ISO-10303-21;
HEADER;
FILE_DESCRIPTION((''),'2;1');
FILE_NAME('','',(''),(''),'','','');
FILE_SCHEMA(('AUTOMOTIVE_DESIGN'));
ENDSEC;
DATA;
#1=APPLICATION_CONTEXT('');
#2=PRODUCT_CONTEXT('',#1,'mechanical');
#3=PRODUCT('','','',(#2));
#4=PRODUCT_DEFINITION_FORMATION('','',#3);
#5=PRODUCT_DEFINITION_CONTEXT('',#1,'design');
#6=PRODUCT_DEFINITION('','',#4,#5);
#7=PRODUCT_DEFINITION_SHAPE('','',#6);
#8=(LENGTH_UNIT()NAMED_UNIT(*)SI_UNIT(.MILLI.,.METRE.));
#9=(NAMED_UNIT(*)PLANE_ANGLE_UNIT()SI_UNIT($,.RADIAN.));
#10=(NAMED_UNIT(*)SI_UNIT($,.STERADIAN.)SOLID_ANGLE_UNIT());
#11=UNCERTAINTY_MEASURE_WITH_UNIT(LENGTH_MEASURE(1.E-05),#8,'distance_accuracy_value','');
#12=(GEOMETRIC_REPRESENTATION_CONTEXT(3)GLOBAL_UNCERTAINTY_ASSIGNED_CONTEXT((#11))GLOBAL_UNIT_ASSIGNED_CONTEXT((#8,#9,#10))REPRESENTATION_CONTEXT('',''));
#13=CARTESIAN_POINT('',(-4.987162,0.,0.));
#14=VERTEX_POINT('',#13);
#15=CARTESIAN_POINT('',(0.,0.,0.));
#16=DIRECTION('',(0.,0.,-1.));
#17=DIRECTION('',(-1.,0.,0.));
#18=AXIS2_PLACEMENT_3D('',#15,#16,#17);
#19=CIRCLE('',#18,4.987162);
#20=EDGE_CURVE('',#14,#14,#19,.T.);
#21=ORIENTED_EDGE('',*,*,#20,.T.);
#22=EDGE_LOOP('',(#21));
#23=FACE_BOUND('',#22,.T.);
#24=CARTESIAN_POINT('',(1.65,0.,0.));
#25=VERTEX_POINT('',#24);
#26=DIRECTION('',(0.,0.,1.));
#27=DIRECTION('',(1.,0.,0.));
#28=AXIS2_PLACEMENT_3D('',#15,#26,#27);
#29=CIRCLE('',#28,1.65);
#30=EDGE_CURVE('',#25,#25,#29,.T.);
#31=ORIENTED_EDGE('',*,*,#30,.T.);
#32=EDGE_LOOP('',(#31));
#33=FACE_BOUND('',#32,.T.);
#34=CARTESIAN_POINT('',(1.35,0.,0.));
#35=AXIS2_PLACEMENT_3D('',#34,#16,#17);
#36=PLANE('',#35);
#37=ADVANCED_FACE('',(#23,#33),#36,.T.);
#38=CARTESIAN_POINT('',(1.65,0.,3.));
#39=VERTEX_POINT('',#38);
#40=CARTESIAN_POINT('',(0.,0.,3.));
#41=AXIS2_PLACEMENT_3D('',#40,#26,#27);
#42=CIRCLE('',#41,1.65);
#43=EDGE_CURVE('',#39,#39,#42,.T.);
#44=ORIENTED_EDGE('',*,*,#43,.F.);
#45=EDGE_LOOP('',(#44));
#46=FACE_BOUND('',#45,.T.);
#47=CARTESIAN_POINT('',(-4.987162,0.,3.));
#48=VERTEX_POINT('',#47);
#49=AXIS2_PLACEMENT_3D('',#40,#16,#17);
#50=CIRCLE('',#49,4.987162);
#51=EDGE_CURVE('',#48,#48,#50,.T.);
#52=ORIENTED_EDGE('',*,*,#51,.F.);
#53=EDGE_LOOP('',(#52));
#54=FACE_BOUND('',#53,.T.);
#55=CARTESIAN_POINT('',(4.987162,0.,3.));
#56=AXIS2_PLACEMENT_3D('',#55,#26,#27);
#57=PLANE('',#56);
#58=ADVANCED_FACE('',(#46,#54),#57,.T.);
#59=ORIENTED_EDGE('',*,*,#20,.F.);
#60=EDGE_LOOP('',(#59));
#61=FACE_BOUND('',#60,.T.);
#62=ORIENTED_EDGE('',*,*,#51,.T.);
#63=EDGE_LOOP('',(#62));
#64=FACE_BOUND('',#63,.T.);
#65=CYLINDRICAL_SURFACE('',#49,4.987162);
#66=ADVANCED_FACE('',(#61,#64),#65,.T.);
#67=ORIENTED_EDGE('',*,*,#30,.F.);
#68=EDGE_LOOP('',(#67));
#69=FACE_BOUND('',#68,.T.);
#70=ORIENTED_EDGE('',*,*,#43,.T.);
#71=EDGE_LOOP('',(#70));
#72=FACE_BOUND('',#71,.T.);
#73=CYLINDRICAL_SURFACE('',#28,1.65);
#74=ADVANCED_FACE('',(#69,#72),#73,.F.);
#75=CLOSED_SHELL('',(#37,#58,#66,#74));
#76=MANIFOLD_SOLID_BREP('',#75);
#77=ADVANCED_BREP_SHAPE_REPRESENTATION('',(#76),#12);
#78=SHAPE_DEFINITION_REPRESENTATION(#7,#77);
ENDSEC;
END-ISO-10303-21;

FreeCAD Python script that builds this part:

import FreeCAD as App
import Part
import Sketcher

V = App.Vector
Q = App.Units.Quantity

doc = App.newDocument("Part")
params = doc.addObject("Spreadsheet::Sheet", "Params")
for row, (alias, value) in enumerate([
    ("sketch1_height", "3 mm"),
    ("revolution_angle", "360 deg"),
    ("sketch2_diameter", "3.3 mm"),
], start=1):
    params.set(f"A{row}", alias)
    params.set(f"B{row}", "=" + value)
    params.setAlias(f"B{row}", alias)

body = doc.addObject("PartDesign::Body", "Body")

sketch1 = doc.addObject("Sketcher::SketchObject", "Sketch")
body.addObject(sketch1)
sketch1.AttachmentSupport = (doc.XZ_Plane, [""])
sketch1.MapMode = "FlatFace"
sketch1.addGeometry(Part.LineSegment(V(1.4, 3, 0), V(1.4, 0, 0)), False)
sketch1.addGeometry(Part.LineSegment(V(1.4, 0, 0), V(5, 0, 0)), False)
sketch1.addGeometry(Part.LineSegment(V(5, 0, 0), V(5, 3, 0)), False)
sketch1.addGeometry(Part.LineSegment(V(5, 3, 0), V(1.4, 3, 0)), False)
sketch1.addConstraint(Sketcher.Constraint("Coincident", 0, 2, 1, 1))
sketch1.addConstraint(Sketcher.Constraint("Coincident", 1, 2, 2, 1))
sketch1.addConstraint(Sketcher.Constraint("Coincident", 2, 2, 3, 1))
sketch1.addConstraint(Sketcher.Constraint("Coincident", 3, 2, 0, 1))
sketch1.addConstraint(Sketcher.Constraint("Vertical", 0))
sketch1.addConstraint(Sketcher.Constraint("Horizontal", 1))
sketch1.addConstraint(Sketcher.Constraint("Vertical", 2))
sketch1.addConstraint(Sketcher.Constraint("Horizontal", 3))
sketch1.addConstraint(Sketcher.Constraint("PointOnObject", 0, 2, -1))
sketch1.addConstraint(Sketcher.Constraint("DistanceY", 0, 2, 0, 1, Q("3 mm")))
sketch1.addConstraint(Sketcher.Constraint("DistanceX", -1, 1, 0, 2, Q("1.35 mm")))
sketch1.addConstraint(Sketcher.Constraint("DistanceX", 1, 1, 1, 2, Q("3.637162 mm")))
sketch1.setExpression("Constraints[9]", "Params.sketch1_height")
revolution = doc.addObject("PartDesign::Revolution", "Revolution")
body.addObject(revolution)
revolution.Profile = sketch1
revolution.ReferenceAxis = (sketch1, ["V_Axis"])
revolution.setExpression("Angle", "Params.revolution_angle")

sketch2 = doc.addObject("Sketcher::SketchObject", "Sketch001")
body.addObject(sketch2)
sketch2.AttachmentSupport = (doc.XY_Plane, [""])
sketch2.MapMode = "FlatFace"
sketch2.AttachmentOffset = App.Placement(V(0, 0, 3), App.Rotation())
sketch2.addGeometry(Part.Circle(V(0, 0, 0), V(0, 0, 1), 1.6), False)
sketch2.addConstraint(Sketcher.Constraint("Coincident", 0, 3, -1, 1))
sketch2.addConstraint(Sketcher.Constraint("Diameter", 0, Q("3.3 mm")))
sketch2.setExpression("Constraints[1]", "Params.sketch2_diameter")
pocket1 = doc.addObject("PartDesign::Pocket", "Pocket")
body.addObject(pocket1)
pocket1.Profile = sketch2
pocket1.Type = "ThroughAll"

doc.recompute()
